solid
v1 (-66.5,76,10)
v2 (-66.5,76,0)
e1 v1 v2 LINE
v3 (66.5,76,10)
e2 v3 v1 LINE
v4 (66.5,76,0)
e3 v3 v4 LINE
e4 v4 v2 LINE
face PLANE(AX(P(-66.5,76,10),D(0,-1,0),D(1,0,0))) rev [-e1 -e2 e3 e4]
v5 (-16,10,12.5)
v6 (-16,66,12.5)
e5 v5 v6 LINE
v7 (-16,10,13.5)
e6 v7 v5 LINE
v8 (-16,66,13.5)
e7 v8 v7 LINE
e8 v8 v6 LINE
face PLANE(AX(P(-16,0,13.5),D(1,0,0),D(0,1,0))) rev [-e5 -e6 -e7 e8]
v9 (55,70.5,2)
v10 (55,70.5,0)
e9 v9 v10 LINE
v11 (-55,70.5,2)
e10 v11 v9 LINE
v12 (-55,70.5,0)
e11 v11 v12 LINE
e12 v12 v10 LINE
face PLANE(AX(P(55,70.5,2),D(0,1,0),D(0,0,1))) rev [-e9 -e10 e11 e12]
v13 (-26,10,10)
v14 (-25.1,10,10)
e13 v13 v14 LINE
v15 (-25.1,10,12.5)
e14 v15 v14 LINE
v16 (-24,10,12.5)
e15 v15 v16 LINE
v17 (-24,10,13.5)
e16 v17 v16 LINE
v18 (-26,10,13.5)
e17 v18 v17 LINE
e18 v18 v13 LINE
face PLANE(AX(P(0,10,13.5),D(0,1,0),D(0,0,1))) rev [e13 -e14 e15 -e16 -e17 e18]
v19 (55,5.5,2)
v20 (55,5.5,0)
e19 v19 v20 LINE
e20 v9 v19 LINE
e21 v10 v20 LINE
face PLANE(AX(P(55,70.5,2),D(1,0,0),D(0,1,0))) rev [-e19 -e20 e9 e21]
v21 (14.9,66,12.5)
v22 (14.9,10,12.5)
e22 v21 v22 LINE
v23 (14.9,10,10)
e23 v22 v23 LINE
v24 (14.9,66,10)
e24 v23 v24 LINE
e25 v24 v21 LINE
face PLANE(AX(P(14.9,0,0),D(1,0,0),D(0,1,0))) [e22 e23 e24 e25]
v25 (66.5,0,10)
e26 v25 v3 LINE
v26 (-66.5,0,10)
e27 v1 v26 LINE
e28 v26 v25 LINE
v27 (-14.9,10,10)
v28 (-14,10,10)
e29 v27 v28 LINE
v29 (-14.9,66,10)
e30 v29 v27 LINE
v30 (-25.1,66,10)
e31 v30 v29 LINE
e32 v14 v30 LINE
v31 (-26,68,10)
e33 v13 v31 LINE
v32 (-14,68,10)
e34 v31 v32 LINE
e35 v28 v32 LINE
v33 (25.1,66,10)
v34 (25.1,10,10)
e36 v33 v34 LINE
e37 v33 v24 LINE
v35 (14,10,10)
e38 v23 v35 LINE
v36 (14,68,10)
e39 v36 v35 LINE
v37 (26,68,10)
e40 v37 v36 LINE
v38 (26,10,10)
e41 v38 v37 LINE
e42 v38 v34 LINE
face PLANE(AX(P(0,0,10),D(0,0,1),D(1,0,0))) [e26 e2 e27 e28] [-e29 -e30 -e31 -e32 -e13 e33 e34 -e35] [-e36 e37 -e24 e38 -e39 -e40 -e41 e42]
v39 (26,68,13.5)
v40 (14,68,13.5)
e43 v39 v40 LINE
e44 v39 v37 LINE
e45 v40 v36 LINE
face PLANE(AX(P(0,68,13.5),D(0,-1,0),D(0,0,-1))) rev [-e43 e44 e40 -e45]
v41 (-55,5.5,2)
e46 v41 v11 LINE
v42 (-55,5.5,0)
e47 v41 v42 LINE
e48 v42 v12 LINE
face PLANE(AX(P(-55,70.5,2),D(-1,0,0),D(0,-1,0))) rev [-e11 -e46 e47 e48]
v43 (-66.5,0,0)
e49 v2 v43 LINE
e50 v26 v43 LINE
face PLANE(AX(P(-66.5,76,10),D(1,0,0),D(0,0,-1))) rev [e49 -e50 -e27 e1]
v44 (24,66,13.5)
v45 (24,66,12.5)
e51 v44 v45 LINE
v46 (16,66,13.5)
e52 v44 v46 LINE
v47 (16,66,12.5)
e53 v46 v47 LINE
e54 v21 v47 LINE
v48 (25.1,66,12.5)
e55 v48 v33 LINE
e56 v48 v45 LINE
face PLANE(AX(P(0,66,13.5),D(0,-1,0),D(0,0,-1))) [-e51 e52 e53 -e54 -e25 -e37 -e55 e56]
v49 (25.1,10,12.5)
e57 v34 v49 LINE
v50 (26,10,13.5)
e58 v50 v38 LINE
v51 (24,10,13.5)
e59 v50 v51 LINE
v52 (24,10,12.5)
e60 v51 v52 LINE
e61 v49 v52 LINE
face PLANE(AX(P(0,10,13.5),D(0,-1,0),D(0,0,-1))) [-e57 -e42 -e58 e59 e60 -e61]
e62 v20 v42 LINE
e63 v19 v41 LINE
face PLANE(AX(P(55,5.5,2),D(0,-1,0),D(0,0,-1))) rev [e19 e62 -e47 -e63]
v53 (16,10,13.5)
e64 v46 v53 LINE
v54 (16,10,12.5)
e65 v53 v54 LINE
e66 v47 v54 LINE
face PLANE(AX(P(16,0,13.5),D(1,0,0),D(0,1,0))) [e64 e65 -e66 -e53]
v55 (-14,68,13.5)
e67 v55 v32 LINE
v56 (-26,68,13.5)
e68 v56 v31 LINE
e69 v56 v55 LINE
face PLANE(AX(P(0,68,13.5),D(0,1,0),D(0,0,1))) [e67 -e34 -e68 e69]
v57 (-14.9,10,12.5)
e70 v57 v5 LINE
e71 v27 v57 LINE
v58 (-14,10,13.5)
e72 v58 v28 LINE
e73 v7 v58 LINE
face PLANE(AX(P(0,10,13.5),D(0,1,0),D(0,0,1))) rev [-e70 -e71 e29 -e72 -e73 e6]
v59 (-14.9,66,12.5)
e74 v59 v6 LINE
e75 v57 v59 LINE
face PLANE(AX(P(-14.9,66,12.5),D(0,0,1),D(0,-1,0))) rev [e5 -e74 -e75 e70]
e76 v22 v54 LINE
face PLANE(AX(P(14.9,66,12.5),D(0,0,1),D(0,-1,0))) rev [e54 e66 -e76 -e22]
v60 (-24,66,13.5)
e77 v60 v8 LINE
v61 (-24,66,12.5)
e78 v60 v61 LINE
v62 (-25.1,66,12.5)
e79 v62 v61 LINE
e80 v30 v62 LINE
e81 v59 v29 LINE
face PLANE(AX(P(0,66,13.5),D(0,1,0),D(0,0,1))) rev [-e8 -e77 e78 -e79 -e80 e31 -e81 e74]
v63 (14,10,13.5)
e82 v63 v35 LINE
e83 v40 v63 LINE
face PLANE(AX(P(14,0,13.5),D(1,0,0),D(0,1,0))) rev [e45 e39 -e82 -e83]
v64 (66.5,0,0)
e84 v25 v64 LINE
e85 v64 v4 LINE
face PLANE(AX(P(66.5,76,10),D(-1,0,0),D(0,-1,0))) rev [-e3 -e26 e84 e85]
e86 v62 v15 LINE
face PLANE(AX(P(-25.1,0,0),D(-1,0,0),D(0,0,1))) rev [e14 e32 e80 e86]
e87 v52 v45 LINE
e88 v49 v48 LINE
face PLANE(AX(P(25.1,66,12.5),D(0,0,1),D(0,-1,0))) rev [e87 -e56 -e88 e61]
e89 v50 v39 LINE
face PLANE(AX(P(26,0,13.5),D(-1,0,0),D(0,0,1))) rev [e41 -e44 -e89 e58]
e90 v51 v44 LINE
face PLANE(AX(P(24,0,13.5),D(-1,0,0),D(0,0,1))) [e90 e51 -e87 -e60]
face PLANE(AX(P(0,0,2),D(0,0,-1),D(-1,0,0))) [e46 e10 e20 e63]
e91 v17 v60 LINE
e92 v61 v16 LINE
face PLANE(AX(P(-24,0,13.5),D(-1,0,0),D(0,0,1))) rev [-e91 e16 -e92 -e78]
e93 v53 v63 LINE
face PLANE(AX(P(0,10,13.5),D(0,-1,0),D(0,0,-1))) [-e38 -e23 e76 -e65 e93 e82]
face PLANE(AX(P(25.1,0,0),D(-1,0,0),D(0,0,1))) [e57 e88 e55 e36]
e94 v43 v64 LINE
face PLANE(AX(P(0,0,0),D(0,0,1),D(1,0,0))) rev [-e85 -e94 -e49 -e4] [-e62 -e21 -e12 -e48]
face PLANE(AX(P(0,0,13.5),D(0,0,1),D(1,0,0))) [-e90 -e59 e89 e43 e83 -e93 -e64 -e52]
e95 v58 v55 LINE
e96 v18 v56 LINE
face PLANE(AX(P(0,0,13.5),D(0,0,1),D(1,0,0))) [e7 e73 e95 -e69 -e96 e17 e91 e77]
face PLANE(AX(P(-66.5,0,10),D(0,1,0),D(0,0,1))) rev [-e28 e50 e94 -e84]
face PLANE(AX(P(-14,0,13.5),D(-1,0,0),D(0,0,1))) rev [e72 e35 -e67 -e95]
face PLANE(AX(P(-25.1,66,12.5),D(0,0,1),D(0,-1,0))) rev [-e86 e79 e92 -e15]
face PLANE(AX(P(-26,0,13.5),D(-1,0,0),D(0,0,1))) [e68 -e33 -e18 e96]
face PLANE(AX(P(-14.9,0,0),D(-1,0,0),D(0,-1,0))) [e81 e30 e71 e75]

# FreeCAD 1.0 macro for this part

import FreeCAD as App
import Part
import Sketcher

V = App.Vector


def add_polygon(sketch, points):
    """Adds a closed chain of lines whose ends are joined by coincident constraints."""
    first, n = sketch.GeometryCount, len(points)
    for a, b in zip(points, points[1:] + points[:1]):
        sketch.addGeometry(Part.LineSegment(App.Vector(*a, 0), App.Vector(*b, 0)), False)
    for i in range(n):
        sketch.addConstraint(Sketcher.Constraint("Coincident", first + i, 2, first + (i + 1) % n, 1))

doc = App.newDocument("Part")
body = doc.addObject("PartDesign::Body", "Body")

# Sketch on XY plane
sketch1 = body.newObject("Sketcher::SketchObject", "Sketch")
sketch1.AttachmentSupport = (doc.getObject("XY_Plane"), [""])
sketch1.MapMode = "FlatFace"
add_polygon(sketch1, [(-66.5, 76), (-66.5, 0), (66.5, 0), (66.5, 76)])  # lines 0-3
sketch1.addConstraint(Sketcher.Constraint("Vertical", 0))
sketch1.addConstraint(Sketcher.Constraint("Horizontal", 1))
sketch1.addConstraint(Sketcher.Constraint("Vertical", 2))
sketch1.addConstraint(Sketcher.Constraint("Horizontal", 3))
sketch1.addConstraint(Sketcher.Constraint("Symmetric", 0, 2, 1, 2, -1, 1))
sketch1.addConstraint(Sketcher.Constraint("DistanceX", 1, 1, 1, 2, 133.0))
sketch1.addConstraint(Sketcher.Constraint("DistanceY", 0, 2, 0, 1, 76.0))
pad1 = body.newObject("PartDesign::Pad", "Pad")
pad1.Profile = sketch1
pad1.Length = 10

# Sketch on XY plane
sketch2 = body.newObject("Sketcher::SketchObject", "Sketch001")
sketch2.AttachmentSupport = (doc.getObject("XY_Plane"), [""])
sketch2.MapMode = "FlatFace"
add_polygon(sketch2, [(55, 70.5), (55, 5.5), (-55, 5.5), (-55, 70.5)])  # lines 0-3
sketch2.addConstraint(Sketcher.Constraint("Vertical", 0))
sketch2.addConstraint(Sketcher.Constraint("Horizontal", 1))
sketch2.addConstraint(Sketcher.Constraint("Vertical", 2))
sketch2.addConstraint(Sketcher.Constraint("Horizontal", 3))
sketch2.addConstraint(Sketcher.Constraint("DistanceX", 1, 2, 1, 1, 110.0))
sketch2.addConstraint(Sketcher.Constraint("DistanceY", 0, 2, 0, 1, 65.0))
sketch2.addConstraint(Sketcher.Constraint("DistanceX", -1, 1, 0, 2, 55.0))
sketch2.addConstraint(Sketcher.Constraint("DistanceY", -1, 1, 0, 2, 5.5))
pocket1 = body.newObject("PartDesign::Pocket", "Pocket")
pocket1.Profile = sketch2
pocket1.Length = 2
pocket1.Reversed = True

# Sketch on XY plane
sketch3 = body.newObject("Sketcher::SketchObject", "Sketch002")
sketch3.AttachmentSupport = (doc.getObject("XY_Plane"), [""])
sketch3.MapMode = "FlatFace"
sketch3.AttachmentOffset = App.Placement(V(0, 0, 10), App.Rotation())
add_polygon(sketch3, [(-26, 68), (-26, 10), (-24, 10), (-24, 66), (-16, 66), (-16, 10), (-14, 10), (-14, 68)])  # lines 0-7
add_polygon(sketch3, [(14, 10), (16, 10), (16, 66), (24, 66), (24, 10), (26, 10), (26, 68), (14, 68)])  # lines 8-15
sketch3.addConstraint(Sketcher.Constraint("Vertical", 0))
sketch3.addConstraint(Sketcher.Constraint("Horizontal", 1))
sketch3.addConstraint(Sketcher.Constraint("Vertical", 2))
sketch3.addConstraint(Sketcher.Constraint("Horizontal", 3))
sketch3.addConstraint(Sketcher.Constraint("Vertical", 4))
sketch3.addConstraint(Sketcher.Constraint("Horizontal", 5))
sketch3.addConstraint(Sketcher.Constraint("Vertical", 6))
sketch3.addConstraint(Sketcher.Constraint("Horizontal", 7))
sketch3.addConstraint(Sketcher.Constraint("Horizontal", 8))
sketch3.addConstraint(Sketcher.Constraint("Vertical", 9))
sketch3.addConstraint(Sketcher.Constraint("Horizontal", 10))
sketch3.addConstraint(Sketcher.Constraint("Vertical", 11))
sketch3.addConstraint(Sketcher.Constraint("Horizontal", 12))
sketch3.addConstraint(Sketcher.Constraint("Vertical", 13))
sketch3.addConstraint(Sketcher.Constraint("Horizontal", 14))
sketch3.addConstraint(Sketcher.Constraint("Vertical", 15))
sketch3.addConstraint(Sketcher.Constraint("Symmetric", 4, 2, 8, 2, -2))
sketch3.addConstraint(Sketcher.Constraint("Symmetric", 2, 2, 10, 2, -2))
sketch3.addConstraint(Sketcher.Constraint("Symmetric", 0, 2, 12, 2, -2))
sketch3.addConstraint(Sketcher.Constraint("Symmetric", 6, 2, 14, 2, -2))
sketch3.addConstraint(Sketcher.Constraint("Horizontal", 1, 2, 4, 2))
sketch3.addConstraint(Sketcher.Constraint("Equal", 1, 5))
sketch3.addConstraint(Sketcher.Constraint("DistanceX", 1, 1, 1, 2, 2.0))
sketch3.addConstraint(Sketcher.Constraint("DistanceX", 3, 1, 3, 2, 8.0))
sketch3.addConstraint(Sketcher.Constraint("DistanceY", 0, 2, 0, 1, 58.0))
sketch3.addConstraint(Sketcher.Constraint("DistanceY", 2, 1, 2, 2, 56.0))
sketch3.addConstraint(Sketcher.Constraint("DistanceX", 0, 2, -1, 1, 26.0))
sketch3.addConstraint(Sketcher.Constraint("DistanceY", -1, 1, 0, 2, 10.0))
pad2 = body.newObject("PartDesign::Pad", "Pad001")
pad2.Profile = sketch3
pad2.Length = 3.5

# Sketch on YZ plane
sketch4 = body.newObject("Sketcher::SketchObject", "Sketch003")
sketch4.AttachmentSupport = (doc.getObject("YZ_Plane"), [""])
sketch4.MapMode = "FlatFace"
sketch4.AttachmentOffset = App.Placement(V(0, 0, -24), App.Rotation())
add_polygon(sketch4, [(66, 12.5), (10, 12.5), (10, 10), (66, 10)])  # lines 0-3
sketch4.addConstraint(Sketcher.Constraint("Horizontal", 0))
sketch4.addConstraint(Sketcher.Constraint("Vertical", 1))
sketch4.addConstraint(Sketcher.Constraint("Horizontal", 2))
sketch4.addConstraint(Sketcher.Constraint("Vertical", 3))
sketch4.addConstraint(Sketcher.Constraint("DistanceX", 0, 2, 0, 1, 56.0))
sketch4.addConstraint(Sketcher.Constraint("DistanceY", 1, 2, 1, 1, 2.5))
sketch4.addConstraint(Sketcher.Constraint("DistanceX", -1, 1, 0, 2, 10.0))
sketch4.addConstraint(Sketcher.Constraint("DistanceY", -1, 1, 1, 2, 10.0))
pocket2 = body.newObject("PartDesign::Pocket", "Pocket001")
pocket2.Profile = sketch4
pocket2.Length = 1.1

# Sketch on YZ plane
sketch5 = body.newObject("Sketcher::SketchObject", "Sketch004")
sketch5.AttachmentSupport = (doc.getObject("YZ_Plane"), [""])
sketch5.MapMode = "FlatFace"
sketch5.AttachmentOffset = App.Placement(V(0, 0, -16), App.Rotation())
add_polygon(sketch5, [(66, 10), (10, 10), (10, 12.5), (66, 12.5)])  # lines 0-3
sketch5.addConstraint(Sketcher.Constraint("Horizontal", 0))
sketch5.addConstraint(Sketcher.Constraint("Vertical", 1))
sketch5.addConstraint(Sketcher.Constraint("Horizontal", 2))
sketch5.addConstraint(Sketcher.Constraint("Vertical", 3))
sketch5.addConstraint(Sketcher.Constraint("DistanceX", 0, 2, 0, 1, 56.0))
sketch5.addConstraint(Sketcher.Constraint("DistanceY", 1, 1, 1, 2, 2.5))
sketch5.addConstraint(Sketcher.Constraint("DistanceX", -1, 1, 0, 2, 10.0))
sketch5.addConstraint(Sketcher.Constraint("DistanceY", -1, 1, 0, 2, 10.0))
pocket3 = body.newObject("PartDesign::Pocket", "Pocket002")
pocket3.Profile = sketch5
pocket3.Length = 1.1
pocket3.Reversed = True

# Sketch on YZ plane
sketch6 = body.newObject("Sketcher::SketchObject", "Sketch005")
sketch6.AttachmentSupport = (doc.getObject("YZ_Plane"), [""])
sketch6.MapMode = "FlatFace"
sketch6.AttachmentOffset = App.Placement(V(0, 0, 16), App.Rotation())
add_polygon(sketch6, [(66, 12.5), (10, 12.5), (10, 10), (66, 10)])  # lines 0-3
sketch6.addConstraint(Sketcher.Constraint("Horizontal", 0))
sketch6.addConstraint(Sketcher.Constraint("Vertical", 1))
sketch6.addConstraint(Sketcher.Constraint("Horizontal", 2))
sketch6.addConstraint(Sketcher.Constraint("Vertical", 3))
sketch6.addConstraint(Sketcher.Constraint("DistanceX", 0, 2, 0, 1, 56.0))
sketch6.addConstraint(Sketcher.Constraint("DistanceY", 1, 2, 1, 1, 2.5))
sketch6.addConstraint(Sketcher.Constraint("DistanceX", -1, 1, 0, 2, 10.0))
sketch6.addConstraint(Sketcher.Constraint("DistanceY", -1, 1, 1, 2, 10.0))
pocket4 = body.newObject("PartDesign::Pocket", "Pocket003")
pocket4.Profile = sketch6
pocket4.Length = 1.1

# Sketch on YZ plane
sketch7 = body.newObject("Sketcher::SketchObject", "Sketch006")
sketch7.AttachmentSupport = (doc.getObject("YZ_Plane"), [""])
sketch7.MapMode = "FlatFace"
sketch7.AttachmentOffset = App.Placement(V(0, 0, 24), App.Rotation())
add_polygon(sketch7, [(66, 10), (10, 10), (10, 12.5), (66, 12.5)])  # lines 0-3
sketch7.addConstraint(Sketcher.Constraint("Horizontal", 0))
sketch7.addConstraint(Sketcher.Constraint("Vertical", 1))
sketch7.addConstraint(Sketcher.Constraint("Horizontal", 2))
sketch7.addConstraint(Sketcher.Constraint("Vertical", 3))
sketch7.addConstraint(Sketcher.Constraint("DistanceX", 0, 2, 0, 1, 56.0))
sketch7.addConstraint(Sketcher.Constraint("DistanceY", 1, 1, 1, 2, 2.5))
sketch7.addConstraint(Sketcher.Constraint("DistanceX", -1, 1, 0, 2, 10.0))
sketch7.addConstraint(Sketcher.Constraint("DistanceY", -1, 1, 0, 2, 10.0))
pocket5 = body.newObject("PartDesign::Pocket", "Pocket004")
pocket5.Profile = sketch7
pocket5.Length = 1.1
pocket5.Reversed = True

doc.recompute()
